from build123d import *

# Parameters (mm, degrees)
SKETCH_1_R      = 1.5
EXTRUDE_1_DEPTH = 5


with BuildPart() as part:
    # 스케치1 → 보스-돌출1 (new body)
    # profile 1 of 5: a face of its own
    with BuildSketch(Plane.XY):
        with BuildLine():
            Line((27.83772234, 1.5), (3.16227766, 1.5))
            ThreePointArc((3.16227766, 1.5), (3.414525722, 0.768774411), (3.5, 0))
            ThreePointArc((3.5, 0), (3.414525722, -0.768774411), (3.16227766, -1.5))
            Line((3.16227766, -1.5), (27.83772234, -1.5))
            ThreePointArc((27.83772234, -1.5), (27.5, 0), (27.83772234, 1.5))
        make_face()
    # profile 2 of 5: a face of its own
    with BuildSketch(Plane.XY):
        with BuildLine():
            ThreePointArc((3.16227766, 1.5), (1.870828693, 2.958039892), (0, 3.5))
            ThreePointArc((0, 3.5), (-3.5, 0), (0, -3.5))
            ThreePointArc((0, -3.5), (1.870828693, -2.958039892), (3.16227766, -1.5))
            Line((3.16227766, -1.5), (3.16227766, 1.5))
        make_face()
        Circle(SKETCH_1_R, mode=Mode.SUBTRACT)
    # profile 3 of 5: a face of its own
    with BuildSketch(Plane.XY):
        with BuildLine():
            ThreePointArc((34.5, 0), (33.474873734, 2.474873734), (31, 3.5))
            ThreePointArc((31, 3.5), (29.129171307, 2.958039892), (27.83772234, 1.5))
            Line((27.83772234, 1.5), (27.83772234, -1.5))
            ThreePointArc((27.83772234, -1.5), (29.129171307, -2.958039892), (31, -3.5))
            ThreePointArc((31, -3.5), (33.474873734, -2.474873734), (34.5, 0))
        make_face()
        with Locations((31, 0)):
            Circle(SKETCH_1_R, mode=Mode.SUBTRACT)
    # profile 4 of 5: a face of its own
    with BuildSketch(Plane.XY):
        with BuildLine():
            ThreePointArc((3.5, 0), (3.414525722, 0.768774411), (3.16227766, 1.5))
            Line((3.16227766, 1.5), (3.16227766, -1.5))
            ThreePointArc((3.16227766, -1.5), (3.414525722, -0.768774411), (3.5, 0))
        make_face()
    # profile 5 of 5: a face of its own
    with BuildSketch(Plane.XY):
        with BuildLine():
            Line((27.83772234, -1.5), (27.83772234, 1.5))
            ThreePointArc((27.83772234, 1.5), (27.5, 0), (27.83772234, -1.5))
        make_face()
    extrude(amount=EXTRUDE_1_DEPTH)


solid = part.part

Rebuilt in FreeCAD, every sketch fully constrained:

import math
import FreeCAD as App
import Part
import Sketcher
from FreeCAD import Vector
Q = App.Units.Quantity

doc = App.newDocument("Part")
body = doc.addObject("PartDesign::Body", "Body")

sketch1 = doc.addObject("Sketcher::SketchObject", "Sketch")
body.addObject(sketch1)
sketch1.AttachmentSupport = (doc.XY_Plane, [""])
sketch1.MapMode = "FlatFace"
sketch1.addGeometry(Part.LineSegment(Vector(27.8, 1.5, 0), Vector(3.2, 1.5, 0)), False)
sketch1.addGeometry(Part.ArcOfCircle(Part.Circle(Vector(0, 0, 0), Vector(0, 0, 1), 3.5), math.radians(25), math.radians(90)), False)
sketch1.addGeometry(Part.ArcOfCircle(Part.Circle(Vector(0, 0, 0), Vector(0, 0, 1), 3.5), math.radians(90), math.radians(270)), False)
sketch1.addGeometry(Part.ArcOfCircle(Part.Circle(Vector(0, 0, 0), Vector(0, 0, 1), 3.5), math.radians(-90), math.radians(-25)), False)
sketch1.addGeometry(Part.LineSegment(Vector(3.2, -1.5, 0), Vector(27.8, -1.5, 0)), False)
sketch1.addGeometry(Part.ArcOfCircle(Part.Circle(Vector(31, 0, 0), Vector(0, 0, 1), 3.5), math.radians(-155), math.radians(-90)), False)
sketch1.addGeometry(Part.ArcOfCircle(Part.Circle(Vector(31, 0, 0), Vector(0, 0, 1), 3.5), math.radians(-90), math.radians(0)), False)
sketch1.addGeometry(Part.ArcOfCircle(Part.Circle(Vector(31, 0, 0), Vector(0, 0, 1), 3.5), math.radians(0), math.radians(90)), False)
sketch1.addGeometry(Part.ArcOfCircle(Part.Circle(Vector(31, 0, 0), Vector(0, 0, 1), 3.5), math.radians(90), math.radians(155)), False)
sketch1.addGeometry(Part.Circle(Vector(0, 0, 0), Vector(0, 0, 1), 1.5), False)
sketch1.addGeometry(Part.Circle(Vector(31, 0, 0), Vector(0, 0, 1), 1.5), False)
sketch1.addConstraint(Sketcher.Constraint("Coincident", 0, 2, 1, 1))
sketch1.addConstraint(Sketcher.Constraint("Tangent", 1, 2, 2, 1))
sketch1.addConstraint(Sketcher.Constraint("Tangent", 2, 2, 3, 1))
sketch1.addConstraint(Sketcher.Constraint("Coincident", 3, 2, 4, 1))
sketch1.addConstraint(Sketcher.Constraint("Coincident", 4, 2, 5, 1))
sketch1.addConstraint(Sketcher.Constraint("Tangent", 5, 2, 6, 1))
sketch1.addConstraint(Sketcher.Constraint("Tangent", 6, 2, 7, 1))
sketch1.addConstraint(Sketcher.Constraint("Tangent", 7, 2, 8, 1))
sketch1.addConstraint(Sketcher.Constraint("Coincident", 8, 2, 0, 1))
sketch1.addConstraint(Sketcher.Constraint("Horizontal", 0))
sketch1.addConstraint(Sketcher.Constraint("Horizontal", 4))
sketch1.addConstraint(Sketcher.Constraint("Coincident", 1, 3, -1, 1))
sketch1.addConstraint(Sketcher.Constraint("Coincident", 9, 3, -1, 1))
sketch1.addConstraint(Sketcher.Constraint("Coincident", 7, 3, 5, 3))
sketch1.addConstraint(Sketcher.Constraint("Coincident", 10, 3, 5, 3))
sketch1.addConstraint(Sketcher.Constraint("Equal", 1, 2))
sketch1.addConstraint(Sketcher.Constraint("Equal", 2, 3))
sketch1.addConstraint(Sketcher.Constraint("Equal", 3, 5))
sketch1.addConstraint(Sketcher.Constraint("Equal", 7, 8))
sketch1.addConstraint(Sketcher.Constraint("Equal", 9, 10))
sketch1.addConstraint(Sketcher.Constraint("Symmetric", 5, 2, 7, 2, -1))
sketch1.addConstraint(Sketcher.Constraint("PointOnObject", 1, 2, -2))
sketch1.addConstraint(Sketcher.Constraint("PointOnObject", 2, 2, -2))
sketch1.addConstraint(Sketcher.Constraint("PointOnObject", 6, 2, -1))
sketch1.addConstraint(Sketcher.Constraint("Vertical", 0, 2, 3, 2))
sketch1.addConstraint(Sketcher.Constraint("Vertical", 10, 3, 5, 2))
sketch1.addConstraint(Sketcher.Constraint("Diameter", 9, Q("3 mm")))
sketch1.addConstraint(Sketcher.Constraint("Radius", 1, Q("3.5 mm")))
sketch1.addConstraint(Sketcher.Constraint("DistanceX", -1, 1, 5, 3, Q("31 mm")))
sketch1.addConstraint(Sketcher.Constraint("DistanceY", 0, 2, 1, 2, Q("2 mm")))
pad1 = doc.addObject("PartDesign::Pad", "Pad")
body.addObject(pad1)
pad1.Profile = sketch1
pad1.Length = 5

doc.recompute()
